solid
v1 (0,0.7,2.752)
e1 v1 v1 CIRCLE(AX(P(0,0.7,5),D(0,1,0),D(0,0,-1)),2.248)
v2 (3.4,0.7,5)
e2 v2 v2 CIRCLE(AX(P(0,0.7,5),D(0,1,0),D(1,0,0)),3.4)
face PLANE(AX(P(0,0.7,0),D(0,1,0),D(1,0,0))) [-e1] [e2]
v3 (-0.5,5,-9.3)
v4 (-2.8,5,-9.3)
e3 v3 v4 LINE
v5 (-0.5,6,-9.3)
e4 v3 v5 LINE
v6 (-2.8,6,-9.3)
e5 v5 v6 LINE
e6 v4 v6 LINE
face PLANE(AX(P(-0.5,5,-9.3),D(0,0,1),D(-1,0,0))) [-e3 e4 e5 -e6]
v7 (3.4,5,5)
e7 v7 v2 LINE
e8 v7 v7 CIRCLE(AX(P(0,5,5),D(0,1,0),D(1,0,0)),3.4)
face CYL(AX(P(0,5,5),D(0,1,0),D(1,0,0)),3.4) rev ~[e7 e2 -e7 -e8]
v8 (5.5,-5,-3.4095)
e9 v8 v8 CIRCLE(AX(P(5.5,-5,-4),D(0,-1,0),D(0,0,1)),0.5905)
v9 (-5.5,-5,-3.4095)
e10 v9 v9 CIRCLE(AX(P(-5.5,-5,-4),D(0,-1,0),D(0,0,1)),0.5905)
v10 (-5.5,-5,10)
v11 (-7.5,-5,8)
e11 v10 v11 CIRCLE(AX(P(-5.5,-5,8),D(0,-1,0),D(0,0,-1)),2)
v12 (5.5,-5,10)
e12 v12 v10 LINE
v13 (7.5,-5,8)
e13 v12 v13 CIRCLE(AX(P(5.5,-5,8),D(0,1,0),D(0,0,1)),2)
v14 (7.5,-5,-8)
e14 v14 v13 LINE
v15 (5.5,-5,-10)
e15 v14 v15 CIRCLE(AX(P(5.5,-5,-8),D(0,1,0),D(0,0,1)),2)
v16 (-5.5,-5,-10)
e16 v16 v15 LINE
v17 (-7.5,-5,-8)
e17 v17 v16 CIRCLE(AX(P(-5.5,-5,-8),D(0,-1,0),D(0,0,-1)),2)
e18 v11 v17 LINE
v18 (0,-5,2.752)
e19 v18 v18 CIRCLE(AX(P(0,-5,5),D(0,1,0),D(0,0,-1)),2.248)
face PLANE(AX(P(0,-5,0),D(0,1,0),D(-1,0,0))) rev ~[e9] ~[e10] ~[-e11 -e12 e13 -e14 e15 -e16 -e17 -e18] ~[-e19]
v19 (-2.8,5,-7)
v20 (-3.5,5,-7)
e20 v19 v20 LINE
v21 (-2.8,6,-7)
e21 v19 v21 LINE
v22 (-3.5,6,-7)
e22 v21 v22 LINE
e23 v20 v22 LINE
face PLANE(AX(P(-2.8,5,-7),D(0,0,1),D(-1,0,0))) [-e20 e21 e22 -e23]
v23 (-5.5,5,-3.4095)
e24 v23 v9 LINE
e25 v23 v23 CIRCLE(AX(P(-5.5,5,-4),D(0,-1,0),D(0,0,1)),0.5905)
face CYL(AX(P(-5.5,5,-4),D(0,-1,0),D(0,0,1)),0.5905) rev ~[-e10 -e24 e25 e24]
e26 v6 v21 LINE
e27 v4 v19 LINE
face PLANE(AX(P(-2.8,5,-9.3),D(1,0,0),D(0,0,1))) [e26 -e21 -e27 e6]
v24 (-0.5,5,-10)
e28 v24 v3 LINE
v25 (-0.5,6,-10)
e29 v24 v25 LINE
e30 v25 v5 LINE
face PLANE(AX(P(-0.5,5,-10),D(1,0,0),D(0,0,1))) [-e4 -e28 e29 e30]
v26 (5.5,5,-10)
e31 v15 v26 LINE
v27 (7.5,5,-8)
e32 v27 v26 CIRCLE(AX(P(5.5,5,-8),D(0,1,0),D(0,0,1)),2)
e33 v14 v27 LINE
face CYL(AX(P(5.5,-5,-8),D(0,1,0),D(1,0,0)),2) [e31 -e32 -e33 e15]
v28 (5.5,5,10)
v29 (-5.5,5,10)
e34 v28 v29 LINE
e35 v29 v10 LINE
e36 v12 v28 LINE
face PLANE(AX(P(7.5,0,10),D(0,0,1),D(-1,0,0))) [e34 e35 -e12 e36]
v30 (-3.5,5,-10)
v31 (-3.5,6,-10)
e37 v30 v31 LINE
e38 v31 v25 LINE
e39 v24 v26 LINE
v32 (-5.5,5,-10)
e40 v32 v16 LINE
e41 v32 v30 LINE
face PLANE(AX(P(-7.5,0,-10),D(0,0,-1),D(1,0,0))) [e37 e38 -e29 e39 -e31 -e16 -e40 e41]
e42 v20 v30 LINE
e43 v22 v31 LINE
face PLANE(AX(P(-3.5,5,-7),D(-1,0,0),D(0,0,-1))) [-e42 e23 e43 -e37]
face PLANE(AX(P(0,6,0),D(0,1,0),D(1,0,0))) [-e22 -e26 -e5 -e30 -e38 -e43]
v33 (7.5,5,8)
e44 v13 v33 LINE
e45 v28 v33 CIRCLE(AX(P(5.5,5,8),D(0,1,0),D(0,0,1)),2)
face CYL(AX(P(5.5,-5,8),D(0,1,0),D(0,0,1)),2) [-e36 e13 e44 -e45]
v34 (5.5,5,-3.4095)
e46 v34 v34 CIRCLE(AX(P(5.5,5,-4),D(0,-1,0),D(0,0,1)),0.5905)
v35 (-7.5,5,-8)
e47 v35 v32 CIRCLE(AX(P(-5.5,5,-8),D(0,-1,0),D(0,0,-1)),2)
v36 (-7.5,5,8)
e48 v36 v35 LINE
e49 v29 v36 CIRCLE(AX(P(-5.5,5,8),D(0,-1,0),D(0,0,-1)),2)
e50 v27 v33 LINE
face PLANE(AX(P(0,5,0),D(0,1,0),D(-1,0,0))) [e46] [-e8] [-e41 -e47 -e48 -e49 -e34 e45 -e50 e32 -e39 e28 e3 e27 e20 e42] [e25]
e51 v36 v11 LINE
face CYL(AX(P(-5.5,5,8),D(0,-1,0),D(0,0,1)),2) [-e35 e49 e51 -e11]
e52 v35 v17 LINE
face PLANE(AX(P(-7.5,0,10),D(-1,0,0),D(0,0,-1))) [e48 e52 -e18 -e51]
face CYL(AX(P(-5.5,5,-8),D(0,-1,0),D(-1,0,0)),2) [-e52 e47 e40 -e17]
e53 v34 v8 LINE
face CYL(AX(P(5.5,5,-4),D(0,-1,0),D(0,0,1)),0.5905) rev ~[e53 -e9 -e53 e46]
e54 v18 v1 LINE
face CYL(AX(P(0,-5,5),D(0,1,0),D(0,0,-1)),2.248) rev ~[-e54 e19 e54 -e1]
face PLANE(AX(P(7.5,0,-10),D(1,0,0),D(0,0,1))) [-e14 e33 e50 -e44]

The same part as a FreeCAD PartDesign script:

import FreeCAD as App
import Part
import Sketcher

V = App.Vector


def edges_at(feature, points):
    """Names of the edges that pass closest to the given points."""
    edges = feature.Shape.Edges
    near = lambda p: min(range(len(edges)), key=lambda i: edges[i].distToShape(Part.Vertex(*p))[0])
    return sorted({f"Edge{near(p) + 1}" for p in points})

doc = App.newDocument("Part")
body = doc.addObject("PartDesign::Body", "Body")

# Sketch on XZ plane
sketch1 = body.newObject("Sketcher::SketchObject", "Sketch")
sketch1.AttachmentSupport = (doc.getObject("XZ_Plane"), [""])
sketch1.MapMode = "FlatFace"
sketch1.addGeometry(Part.LineSegment(V(-8, 10, 0), V(8, 10, 0)), False)
sketch1.addGeometry(Part.LineSegment(V(8, 10, 0), V(8, -10, 0)), False)
sketch1.addGeometry(Part.LineSegment(V(8, -10, 0), V(-8, -10, 0)), False)
sketch1.addGeometry(Part.LineSegment(V(-8, -10, 0), V(-8, 10, 0)), False)
sketch1.addConstraint(Sketcher.Constraint("Coincident", 0, 2, 1, 1))
sketch1.addConstraint(Sketcher.Constraint("Coincident", 1, 2, 2, 1))
sketch1.addConstraint(Sketcher.Constraint("Coincident", 2, 2, 3, 1))
sketch1.addConstraint(Sketcher.Constraint("Coincident", 3, 2, 0, 1))
sketch1.addConstraint(Sketcher.Constraint("Horizontal", 0))
sketch1.addConstraint(Sketcher.Constraint("Vertical", 1))
sketch1.addConstraint(Sketcher.Constraint("Horizontal", 2))
sketch1.addConstraint(Sketcher.Constraint("Vertical", 3))
sketch1.addConstraint(Sketcher.Constraint("Symmetric", 0, 2, 2, 2, -1, 1))
sketch1.addConstraint(Sketcher.Constraint("DistanceX", 0, 1, 0, 2, 15.0))
sketch1.addConstraint(Sketcher.Constraint("DistanceY", 1, 2, 1, 1, 20.0))
pad1 = body.newObject("PartDesign::Pad", "Pad")
pad1.Profile = sketch1
pad1.Length = 10
pad1.Midplane = True

# Sketch on XZ plane
sketch2 = body.newObject("Sketcher::SketchObject", "Sketch001")
sketch2.AttachmentSupport = (doc.getObject("XZ_Plane"), [""])
sketch2.MapMode = "FlatFace"
sketch2.AttachmentOffset = App.Placement(V(0, 0, -5), App.Rotation())
sketch2.addGeometry(Part.LineSegment(V(-3.5, -10, 0), V(-3.5, -7, 0)), False)
sketch2.addGeometry(Part.LineSegment(V(-3.5, -7, 0), V(-2.8, -7, 0)), False)
sketch2.addGeometry(Part.LineSegment(V(-2.8, -7, 0), V(-2.8, -9.3, 0)), False)
sketch2.addGeometry(Part.LineSegment(V(-2.8, -9.3, 0), V(-0.5, -9.3, 0)), False)
sketch2.addGeometry(Part.LineSegment(V(-0.5, -9.3, 0), V(-0.5, -10, 0)), False)
sketch2.addGeometry(Part.LineSegment(V(-0.5, -10, 0), V(-3.5, -10, 0)), False)
sketch2.addConstraint(Sketcher.Constraint("Coincident", 0, 2, 1, 1))
sketch2.addConstraint(Sketcher.Constraint("Coincident", 1, 2, 2, 1))
sketch2.addConstraint(Sketcher.Constraint("Coincident", 2, 2, 3, 1))
sketch2.addConstraint(Sketcher.Constraint("Coincident", 3, 2, 4, 1))
sketch2.addConstraint(Sketcher.Constraint("Coincident", 4, 2, 5, 1))
sketch2.addConstraint(Sketcher.Constraint("Coincident", 5, 2, 0, 1))
sketch2.addConstraint(Sketcher.Constraint("Vertical", 0))
sketch2.addConstraint(Sketcher.Constraint("Horizontal", 1))
sketch2.addConstraint(Sketcher.Constraint("Vertical", 2))
sketch2.addConstraint(Sketcher.Constraint("Horizontal", 3))
sketch2.addConstraint(Sketcher.Constraint("Vertical", 4))
sketch2.addConstraint(Sketcher.Constraint("Horizontal", 5))
sketch2.addConstraint(Sketcher.Constraint("Equal", 5, 0))
sketch2.addConstraint(Sketcher.Constraint("Equal", 3, 2))
sketch2.addConstraint(Sketcher.Constraint("DistanceX", 5, 2, 5, 1, 3.0))
sketch2.addConstraint(Sketcher.Constraint("DistanceX", 1, 1, 1, 2, 0.7))
sketch2.addConstraint(Sketcher.Constraint("DistanceY", 0, 2, -1, 1, 7.0))
sketch2.addConstraint(Sketcher.Constraint("DistanceX", 0, 2, -1, 1, 3.5))
pad2 = body.newObject("PartDesign::Pad", "Pad001")
pad2.Profile = sketch2
pad2.Length = 1
pad2.Reversed = True
doc.recompute()

fillet = body.newObject("PartDesign::Fillet", "Fillet")
fillet.Base = (pad2, edges_at(pad2, [
    (-7.5, 0, -10),
    (-7.5, 0, 10),
    (7.5, 0, 10),
    (7.5, 0, -10),
]))
fillet.Radius = 2

# Sketch on XZ plane
sketch3 = body.newObject("Sketcher::SketchObject", "Sketch002")
sketch3.AttachmentSupport = (doc.getObject("XZ_Plane"), [""])
sketch3.MapMode = "FlatFace"
sketch3.AttachmentOffset = App.Placement(V(0, 0, -5), App.Rotation())
sketch3.addGeometry(Part.Circle(V(5.5, -4, 0), V(0, 0, 1), 0.6), False)
sketch3.addGeometry(Part.Circle(V(-5.5, -4, 0), V(0, 0, 1), 0.6), False)
sketch3.addConstraint(Sketcher.Constraint("Equal", 0, 1))
sketch3.addConstraint(Sketcher.Constraint("Symmetric", 0, 3, 1, 3, -2))
sketch3.addConstraint(Sketcher.Constraint("Diameter", 0, 1.181))
sketch3.addConstraint(Sketcher.Constraint("DistanceY", 0, 3, -1, 1, 4.0))
sketch3.addConstraint(Sketcher.Constraint("DistanceX", 1, 3, 0, 3, 11.0))
doc.recompute()
hole = body.newObject("PartDesign::Hole", "Hole")
hole.Profile = sketch3
hole.ThreadType = "None"
hole.Diameter = 1.181
hole.DepthType = "ThroughAll"
hole.Reversed = True

# Sketch on XZ plane
sketch4 = body.newObject("Sketcher::SketchObject", "Sketch003")
sketch4.AttachmentSupport = (doc.getObject("XZ_Plane"), [""])
sketch4.MapMode = "FlatFace"
sketch4.AttachmentOffset = App.Placement(V(0, 0, 5), App.Rotation())
sketch4.addGeometry(Part.Circle(V(0, 5, 0), V(0, 0, 1), 2.2), False)
sketch4.addConstraint(Sketcher.Constraint("PointOnObject", 0, 3, -2))
sketch4.addConstraint(Sketcher.Constraint("Diameter", 0, 4.496))
sketch4.addConstraint(Sketcher.Constraint("DistanceY", -1, 1, 0, 3, 5.0))
doc.recompute()
hole2 = body.newObject("PartDesign::Hole", "Hole001")
hole2.Profile = sketch4
hole2.ThreadType = "None"
hole2.Diameter = 4.496
hole2.DepthType = "ThroughAll"

# Sketch on XZ plane
sketch5 = body.newObject("Sketcher::SketchObject", "Sketch004")
sketch5.AttachmentSupport = (doc.getObject("XZ_Plane"), [""])
sketch5.MapMode = "FlatFace"
sketch5.AttachmentOffset = App.Placement(V(0, 0, -5), App.Rotation())
sketch5.addGeometry(Part.Circle(V(0, 5, 0), V(0, 0, 1), 3.4), False)
sketch5.addGeometry(Part.Circle(V(0, 5, 0), V(0, 0, 1), 2.2), False)
sketch5.addConstraint(Sketcher.Constraint("Coincident", 1, 3, 0, 3))
sketch5.addConstraint(Sketcher.Constraint("PointOnObject", 0, 3, -2))
sketch5.addConstraint(Sketcher.Constraint("Diameter", 0, 6.8))
sketch5.addConstraint(Sketcher.Constraint("Diameter", 1, 4.496))
sketch5.addConstraint(Sketcher.Constraint("DistanceY", -1, 1, 0, 3, 5.0))
pocket1 = body.newObject("PartDesign::Pocket", "Pocket")
pocket1.Profile = sketch5
pocket1.Length = 4.3
pocket1.Reversed = True

doc.recompute()
